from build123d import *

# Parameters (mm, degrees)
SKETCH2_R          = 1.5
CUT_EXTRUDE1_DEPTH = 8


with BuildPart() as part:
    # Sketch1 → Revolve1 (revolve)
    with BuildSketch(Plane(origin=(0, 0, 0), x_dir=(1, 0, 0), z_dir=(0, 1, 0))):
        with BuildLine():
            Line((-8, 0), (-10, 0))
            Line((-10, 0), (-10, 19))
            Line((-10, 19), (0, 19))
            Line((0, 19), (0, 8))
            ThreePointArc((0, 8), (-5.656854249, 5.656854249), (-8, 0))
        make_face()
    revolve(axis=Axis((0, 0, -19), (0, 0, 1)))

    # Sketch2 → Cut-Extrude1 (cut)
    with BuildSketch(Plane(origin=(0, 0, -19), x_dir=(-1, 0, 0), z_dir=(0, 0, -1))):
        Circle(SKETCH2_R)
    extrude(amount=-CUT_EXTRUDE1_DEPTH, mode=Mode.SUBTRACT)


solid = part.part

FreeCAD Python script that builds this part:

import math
import FreeCAD as App
import Part
import Sketcher

V = App.Vector

doc = App.newDocument("Part")
body = doc.addObject("PartDesign::Body", "Body")

sketch1 = body.newObject("Sketcher::SketchObject", "Sketch")
sketch1.AttachmentSupport = (doc.getObject("XZ_Plane"), [""])
sketch1.MapMode = "FlatFace"
sketch1.addGeometry(Part.LineSegment(V(-10, 0, 0), V(-8, 0, 0)), False)
sketch1.addGeometry(Part.ArcOfCircle(Part.Circle(V(0, 0, 0), V(0, 0, 1), 8), math.radians(-180), math.radians(-90)), False)
sketch1.addGeometry(Part.LineSegment(V(0, -8, 0), V(0, -19, 0)), False)
sketch1.addGeometry(Part.LineSegment(V(0, -19, 0), V(-10, -19, 0)), False)
sketch1.addGeometry(Part.LineSegment(V(-10, -19, 0), V(-10, 0, 0)), False)
sketch1.addConstraint(Sketcher.Constraint("Coincident", 0, 2, 1, 1))
sketch1.addConstraint(Sketcher.Constraint("Coincident", 1, 2, 2, 1))
sketch1.addConstraint(Sketcher.Constraint("Coincident", 2, 2, 3, 1))
sketch1.addConstraint(Sketcher.Constraint("Coincident", 3, 2, 4, 1))
sketch1.addConstraint(Sketcher.Constraint("Coincident", 4, 2, 0, 1))
sketch1.addConstraint(Sketcher.Constraint("Horizontal", 0))
sketch1.addConstraint(Sketcher.Constraint("Vertical", 2))
sketch1.addConstraint(Sketcher.Constraint("Horizontal", 3))
sketch1.addConstraint(Sketcher.Constraint("Vertical", 4))
sketch1.addConstraint(Sketcher.Constraint("Coincident", 1, 3, -1, 1))
sketch1.addConstraint(Sketcher.Constraint("PointOnObject", 0, 2, -1))
sketch1.addConstraint(Sketcher.Constraint("PointOnObject", 1, 2, -2))
sketch1.addConstraint(Sketcher.Constraint("Radius", 1, 8.0))
sketch1.addConstraint(Sketcher.Constraint("DistanceX", 0, 1, 0, 2, 2.0))
sketch1.addConstraint(Sketcher.Constraint("DistanceY", 2, 2, 2, 1, 11.0))
revolution = body.newObject("PartDesign::Revolution", "Revolution")
revolution.Profile = sketch1
revolution.ReferenceAxis = (sketch1, ["V_Axis"])
revolution.Angle = 360

sketch2 = body.newObject("Sketcher::SketchObject", "Sketch001")
sketch2.AttachmentSupport = (doc.getObject("XY_Plane"), [""])
sketch2.MapMode = "FlatFace"
sketch2.AttachmentOffset = App.Placement(V(0, 0, -19), App.Rotation())
sketch2.addGeometry(Part.Circle(V(0, 0, 0), V(0, 0, 1), 1.5), False)
sketch2.addConstraint(Sketcher.Constraint("Coincident", 0, 3, -1, 1))
sketch2.addConstraint(Sketcher.Constraint("Diameter", 0, 3.0))
pocket1 = body.newObject("PartDesign::Pocket", "Pocket")
pocket1.Profile = sketch2
pocket1.Length = 8
pocket1.Reversed = True

doc.recompute()
